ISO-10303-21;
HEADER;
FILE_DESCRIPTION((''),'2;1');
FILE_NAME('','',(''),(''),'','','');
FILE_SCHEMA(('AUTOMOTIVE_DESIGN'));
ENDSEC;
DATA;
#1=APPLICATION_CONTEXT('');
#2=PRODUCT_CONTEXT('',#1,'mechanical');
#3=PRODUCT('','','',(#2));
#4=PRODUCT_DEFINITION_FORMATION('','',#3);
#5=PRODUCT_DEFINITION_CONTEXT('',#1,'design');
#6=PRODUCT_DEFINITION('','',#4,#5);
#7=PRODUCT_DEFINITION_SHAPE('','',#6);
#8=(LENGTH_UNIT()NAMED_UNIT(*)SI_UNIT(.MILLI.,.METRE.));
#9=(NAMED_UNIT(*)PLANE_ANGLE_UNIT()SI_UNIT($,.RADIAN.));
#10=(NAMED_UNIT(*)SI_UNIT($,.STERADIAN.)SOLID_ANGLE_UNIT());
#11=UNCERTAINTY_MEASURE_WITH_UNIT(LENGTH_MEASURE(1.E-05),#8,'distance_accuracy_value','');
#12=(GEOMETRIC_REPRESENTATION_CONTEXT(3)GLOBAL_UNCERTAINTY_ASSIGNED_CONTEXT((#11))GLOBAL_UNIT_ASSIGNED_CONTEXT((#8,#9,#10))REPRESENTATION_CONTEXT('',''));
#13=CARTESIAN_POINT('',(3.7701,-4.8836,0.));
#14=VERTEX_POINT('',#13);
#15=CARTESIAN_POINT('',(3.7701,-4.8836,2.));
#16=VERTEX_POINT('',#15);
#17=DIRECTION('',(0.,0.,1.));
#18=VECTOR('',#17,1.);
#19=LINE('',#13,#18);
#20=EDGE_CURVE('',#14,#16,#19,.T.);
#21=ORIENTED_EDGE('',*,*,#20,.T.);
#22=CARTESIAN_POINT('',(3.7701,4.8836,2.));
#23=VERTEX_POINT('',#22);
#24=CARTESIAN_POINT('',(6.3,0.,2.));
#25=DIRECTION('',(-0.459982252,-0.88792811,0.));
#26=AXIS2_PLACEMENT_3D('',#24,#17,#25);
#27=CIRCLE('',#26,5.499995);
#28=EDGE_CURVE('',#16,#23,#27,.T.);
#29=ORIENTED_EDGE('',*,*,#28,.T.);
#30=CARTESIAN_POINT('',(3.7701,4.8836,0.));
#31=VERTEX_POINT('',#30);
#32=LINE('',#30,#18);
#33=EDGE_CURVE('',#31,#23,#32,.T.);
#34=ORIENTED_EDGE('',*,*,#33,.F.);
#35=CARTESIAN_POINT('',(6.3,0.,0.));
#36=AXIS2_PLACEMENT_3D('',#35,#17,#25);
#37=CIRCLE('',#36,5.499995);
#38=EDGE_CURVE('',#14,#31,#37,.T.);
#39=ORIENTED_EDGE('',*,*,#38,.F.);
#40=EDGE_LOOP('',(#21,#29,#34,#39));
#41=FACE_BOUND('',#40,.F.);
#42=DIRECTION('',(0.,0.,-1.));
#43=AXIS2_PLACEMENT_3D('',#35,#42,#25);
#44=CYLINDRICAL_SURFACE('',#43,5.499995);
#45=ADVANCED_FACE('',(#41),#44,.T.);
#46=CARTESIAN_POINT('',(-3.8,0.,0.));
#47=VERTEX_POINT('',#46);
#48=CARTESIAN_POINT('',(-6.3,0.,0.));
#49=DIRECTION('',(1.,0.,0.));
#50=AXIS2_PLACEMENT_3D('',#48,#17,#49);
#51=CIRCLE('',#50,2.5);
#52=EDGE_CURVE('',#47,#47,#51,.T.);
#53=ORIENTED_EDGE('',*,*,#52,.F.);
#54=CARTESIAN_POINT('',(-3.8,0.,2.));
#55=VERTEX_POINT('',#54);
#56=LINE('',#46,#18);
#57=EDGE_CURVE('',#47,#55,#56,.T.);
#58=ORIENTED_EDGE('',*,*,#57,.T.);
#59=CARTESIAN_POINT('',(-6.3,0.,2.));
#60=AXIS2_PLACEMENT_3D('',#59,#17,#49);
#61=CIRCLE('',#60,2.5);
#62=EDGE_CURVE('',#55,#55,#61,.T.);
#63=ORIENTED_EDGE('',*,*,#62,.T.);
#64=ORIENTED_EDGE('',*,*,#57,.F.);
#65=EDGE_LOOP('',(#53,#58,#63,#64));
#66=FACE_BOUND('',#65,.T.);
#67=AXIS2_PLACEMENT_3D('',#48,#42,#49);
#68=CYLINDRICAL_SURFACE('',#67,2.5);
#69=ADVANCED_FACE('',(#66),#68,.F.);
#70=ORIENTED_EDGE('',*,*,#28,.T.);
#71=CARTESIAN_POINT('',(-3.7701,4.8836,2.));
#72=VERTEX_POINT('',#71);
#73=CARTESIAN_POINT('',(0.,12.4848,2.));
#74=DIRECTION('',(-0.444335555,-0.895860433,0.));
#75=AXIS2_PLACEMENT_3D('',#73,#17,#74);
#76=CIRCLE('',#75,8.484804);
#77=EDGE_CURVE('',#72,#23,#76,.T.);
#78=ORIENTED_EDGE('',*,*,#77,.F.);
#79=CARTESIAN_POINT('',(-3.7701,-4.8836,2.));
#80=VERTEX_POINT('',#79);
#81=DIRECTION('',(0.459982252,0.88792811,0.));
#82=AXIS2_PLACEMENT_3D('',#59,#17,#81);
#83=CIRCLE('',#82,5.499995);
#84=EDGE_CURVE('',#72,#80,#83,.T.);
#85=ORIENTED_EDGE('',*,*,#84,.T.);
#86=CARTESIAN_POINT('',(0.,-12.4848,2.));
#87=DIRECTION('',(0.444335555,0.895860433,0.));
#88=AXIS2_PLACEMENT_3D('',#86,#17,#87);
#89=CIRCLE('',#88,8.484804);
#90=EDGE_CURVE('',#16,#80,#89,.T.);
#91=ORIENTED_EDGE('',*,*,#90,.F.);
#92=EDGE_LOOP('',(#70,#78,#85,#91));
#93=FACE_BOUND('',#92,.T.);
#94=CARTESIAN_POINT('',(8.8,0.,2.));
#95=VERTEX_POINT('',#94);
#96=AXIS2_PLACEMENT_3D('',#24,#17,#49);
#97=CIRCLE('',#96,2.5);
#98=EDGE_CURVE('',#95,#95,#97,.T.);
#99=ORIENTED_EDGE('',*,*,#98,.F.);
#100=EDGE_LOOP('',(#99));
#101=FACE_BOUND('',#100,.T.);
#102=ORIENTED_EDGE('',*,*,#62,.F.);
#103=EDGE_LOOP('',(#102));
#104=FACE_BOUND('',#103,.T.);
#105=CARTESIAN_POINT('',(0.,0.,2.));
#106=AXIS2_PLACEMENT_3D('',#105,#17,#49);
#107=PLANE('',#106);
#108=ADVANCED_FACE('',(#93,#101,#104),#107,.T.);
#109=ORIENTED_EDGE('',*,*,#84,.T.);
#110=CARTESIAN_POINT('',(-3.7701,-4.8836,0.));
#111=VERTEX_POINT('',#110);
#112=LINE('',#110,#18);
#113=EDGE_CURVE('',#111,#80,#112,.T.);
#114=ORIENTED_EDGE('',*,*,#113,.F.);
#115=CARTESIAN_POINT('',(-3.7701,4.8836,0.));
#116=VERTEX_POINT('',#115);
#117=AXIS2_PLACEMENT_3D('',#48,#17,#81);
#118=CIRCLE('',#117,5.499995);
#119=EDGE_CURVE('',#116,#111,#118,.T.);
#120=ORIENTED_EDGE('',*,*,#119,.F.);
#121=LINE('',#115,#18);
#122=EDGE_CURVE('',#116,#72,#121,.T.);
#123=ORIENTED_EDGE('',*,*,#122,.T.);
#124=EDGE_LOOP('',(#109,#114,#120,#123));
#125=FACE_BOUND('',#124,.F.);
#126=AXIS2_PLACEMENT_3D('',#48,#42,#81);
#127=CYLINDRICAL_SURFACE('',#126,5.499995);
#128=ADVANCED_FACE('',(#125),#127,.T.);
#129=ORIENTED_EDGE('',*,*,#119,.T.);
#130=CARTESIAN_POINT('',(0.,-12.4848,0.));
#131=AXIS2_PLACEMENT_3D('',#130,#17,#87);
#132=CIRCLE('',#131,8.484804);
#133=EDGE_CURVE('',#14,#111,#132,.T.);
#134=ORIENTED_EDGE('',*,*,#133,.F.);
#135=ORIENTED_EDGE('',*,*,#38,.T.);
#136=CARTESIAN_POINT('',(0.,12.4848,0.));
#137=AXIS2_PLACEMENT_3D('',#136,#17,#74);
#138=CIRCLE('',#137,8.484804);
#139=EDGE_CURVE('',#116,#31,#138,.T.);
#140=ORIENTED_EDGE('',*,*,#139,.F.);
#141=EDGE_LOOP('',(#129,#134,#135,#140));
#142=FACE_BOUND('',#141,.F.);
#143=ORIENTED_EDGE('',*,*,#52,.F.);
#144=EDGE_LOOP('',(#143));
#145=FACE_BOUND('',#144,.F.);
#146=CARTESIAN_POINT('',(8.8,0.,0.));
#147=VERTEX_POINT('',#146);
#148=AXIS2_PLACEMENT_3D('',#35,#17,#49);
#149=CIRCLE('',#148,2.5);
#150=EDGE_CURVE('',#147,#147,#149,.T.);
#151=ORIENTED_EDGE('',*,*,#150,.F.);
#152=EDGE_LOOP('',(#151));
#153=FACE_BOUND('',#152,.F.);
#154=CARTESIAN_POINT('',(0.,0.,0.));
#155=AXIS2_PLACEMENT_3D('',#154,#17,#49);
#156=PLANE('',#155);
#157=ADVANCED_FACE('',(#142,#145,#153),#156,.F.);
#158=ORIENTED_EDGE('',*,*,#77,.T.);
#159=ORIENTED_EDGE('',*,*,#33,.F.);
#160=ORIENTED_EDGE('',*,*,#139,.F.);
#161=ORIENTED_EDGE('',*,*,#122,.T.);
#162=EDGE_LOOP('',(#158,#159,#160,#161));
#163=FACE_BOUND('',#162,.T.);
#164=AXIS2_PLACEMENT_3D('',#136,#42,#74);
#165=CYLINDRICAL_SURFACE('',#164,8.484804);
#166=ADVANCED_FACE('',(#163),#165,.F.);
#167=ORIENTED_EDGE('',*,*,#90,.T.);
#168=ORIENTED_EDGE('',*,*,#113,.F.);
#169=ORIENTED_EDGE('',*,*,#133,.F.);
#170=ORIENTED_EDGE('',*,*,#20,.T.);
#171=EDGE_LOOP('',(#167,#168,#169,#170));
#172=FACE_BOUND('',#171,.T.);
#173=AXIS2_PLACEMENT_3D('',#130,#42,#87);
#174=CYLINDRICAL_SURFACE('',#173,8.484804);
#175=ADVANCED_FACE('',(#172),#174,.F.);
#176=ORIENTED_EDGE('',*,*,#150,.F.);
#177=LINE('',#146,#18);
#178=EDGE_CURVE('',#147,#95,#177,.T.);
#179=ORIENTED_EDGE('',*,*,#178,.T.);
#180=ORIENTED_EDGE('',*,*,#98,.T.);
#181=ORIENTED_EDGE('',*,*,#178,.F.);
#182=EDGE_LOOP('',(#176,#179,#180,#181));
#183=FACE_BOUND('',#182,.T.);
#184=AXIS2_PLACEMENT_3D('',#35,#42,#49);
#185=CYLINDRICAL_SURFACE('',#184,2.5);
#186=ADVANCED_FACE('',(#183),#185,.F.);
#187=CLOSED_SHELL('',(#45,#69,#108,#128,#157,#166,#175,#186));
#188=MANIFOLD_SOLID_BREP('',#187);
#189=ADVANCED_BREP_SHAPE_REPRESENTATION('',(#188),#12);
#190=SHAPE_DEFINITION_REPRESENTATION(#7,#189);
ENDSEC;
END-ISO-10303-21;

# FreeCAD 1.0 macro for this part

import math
import FreeCAD as App
import Part
import Sketcher

V = App.Vector
Q = App.Units.Quantity

doc = App.newDocument("Part")
body = doc.addObject("PartDesign::Body", "Body")

sketch1 = doc.addObject("Sketcher::SketchObject", "Sketch")
body.addObject(sketch1)
sketch1.AttachmentSupport = (doc.XY_Plane, [""])
sketch1.MapMode = "FlatFace"
sketch1.addGeometry(Part.ArcOfCircle(Part.Circle(V(0, 12.4848, 0), V(0, 0, 1), 8.484804), math.radians(-116.380836), math.radians(-63.619164)), False)
sketch1.addGeometry(Part.ArcOfCircle(Part.Circle(V(-6.3, 0, 0), V(0, 0, 1), 5.499995), math.radians(62.614038), math.radians(297.385962)), False)
sketch1.addGeometry(Part.ArcOfCircle(Part.Circle(V(0, -12.4848, 0), V(0, 0, 1), 8.484804), math.radians(63.619164), math.radians(116.380836)), False)
sketch1.addGeometry(Part.ArcOfCircle(Part.Circle(V(6.3, 0, 0), V(0, 0, 1), 5.499995), math.radians(-117.385962), math.radians(117.385962)), False)
sketch1.addGeometry(Part.Circle(V(-6.3, 0, 0), V(0, 0, 1), 2.5), False)
sketch1.addGeometry(Part.Circle(V(6.3, 0, 0), V(0, 0, 1), 2.5), False)
sketch1.addConstraint(Sketcher.Constraint("Coincident", 0, 1, 1, 1))
sketch1.addConstraint(Sketcher.Constraint("Coincident", 1, 2, 2, 2))
sketch1.addConstraint(Sketcher.Constraint("Coincident", 2, 1, 3, 1))
sketch1.addConstraint(Sketcher.Constraint("Coincident", 3, 2, 0, 2))
sketch1.addConstraint(Sketcher.Constraint("Coincident", 4, 3, 1, 3))
sketch1.addConstraint(Sketcher.Constraint("Coincident", 5, 3, 3, 3))
sketch1.addConstraint(Sketcher.Constraint("Equal", 0, 2))
sketch1.addConstraint(Sketcher.Constraint("Equal", 1, 3))
sketch1.addConstraint(Sketcher.Constraint("Equal", 4, 5))
sketch1.addConstraint(Sketcher.Constraint("Symmetric", 0, 3, 2, 3, -1, 1))
sketch1.addConstraint(Sketcher.Constraint("Symmetric", 1, 3, 3, 3, -1, 1))
sketch1.addConstraint(Sketcher.Constraint("Symmetric", 1, 2, 2, 1, -2))
sketch1.addConstraint(Sketcher.Constraint("Diameter", 4, Q("5 mm")))
sketch1.addConstraint(Sketcher.Constraint("Radius", 1, Q("5.5 mm")))
sketch1.addConstraint(Sketcher.Constraint("DistanceX", 1, 3, 3, 3, Q("12.6 mm")))
sketch1.addConstraint(Sketcher.Constraint("Radius", 0, Q("8.4848 mm")))
sketch1.addConstraint(Sketcher.Constraint("DistanceX", 0, 1, -1, 1, Q("3.77 mm")))
pad1 = doc.addObject("PartDesign::Pad", "Pad")
body.addObject(pad1)
pad1.Profile = sketch1
pad1.Length = 2

doc.recompute()
